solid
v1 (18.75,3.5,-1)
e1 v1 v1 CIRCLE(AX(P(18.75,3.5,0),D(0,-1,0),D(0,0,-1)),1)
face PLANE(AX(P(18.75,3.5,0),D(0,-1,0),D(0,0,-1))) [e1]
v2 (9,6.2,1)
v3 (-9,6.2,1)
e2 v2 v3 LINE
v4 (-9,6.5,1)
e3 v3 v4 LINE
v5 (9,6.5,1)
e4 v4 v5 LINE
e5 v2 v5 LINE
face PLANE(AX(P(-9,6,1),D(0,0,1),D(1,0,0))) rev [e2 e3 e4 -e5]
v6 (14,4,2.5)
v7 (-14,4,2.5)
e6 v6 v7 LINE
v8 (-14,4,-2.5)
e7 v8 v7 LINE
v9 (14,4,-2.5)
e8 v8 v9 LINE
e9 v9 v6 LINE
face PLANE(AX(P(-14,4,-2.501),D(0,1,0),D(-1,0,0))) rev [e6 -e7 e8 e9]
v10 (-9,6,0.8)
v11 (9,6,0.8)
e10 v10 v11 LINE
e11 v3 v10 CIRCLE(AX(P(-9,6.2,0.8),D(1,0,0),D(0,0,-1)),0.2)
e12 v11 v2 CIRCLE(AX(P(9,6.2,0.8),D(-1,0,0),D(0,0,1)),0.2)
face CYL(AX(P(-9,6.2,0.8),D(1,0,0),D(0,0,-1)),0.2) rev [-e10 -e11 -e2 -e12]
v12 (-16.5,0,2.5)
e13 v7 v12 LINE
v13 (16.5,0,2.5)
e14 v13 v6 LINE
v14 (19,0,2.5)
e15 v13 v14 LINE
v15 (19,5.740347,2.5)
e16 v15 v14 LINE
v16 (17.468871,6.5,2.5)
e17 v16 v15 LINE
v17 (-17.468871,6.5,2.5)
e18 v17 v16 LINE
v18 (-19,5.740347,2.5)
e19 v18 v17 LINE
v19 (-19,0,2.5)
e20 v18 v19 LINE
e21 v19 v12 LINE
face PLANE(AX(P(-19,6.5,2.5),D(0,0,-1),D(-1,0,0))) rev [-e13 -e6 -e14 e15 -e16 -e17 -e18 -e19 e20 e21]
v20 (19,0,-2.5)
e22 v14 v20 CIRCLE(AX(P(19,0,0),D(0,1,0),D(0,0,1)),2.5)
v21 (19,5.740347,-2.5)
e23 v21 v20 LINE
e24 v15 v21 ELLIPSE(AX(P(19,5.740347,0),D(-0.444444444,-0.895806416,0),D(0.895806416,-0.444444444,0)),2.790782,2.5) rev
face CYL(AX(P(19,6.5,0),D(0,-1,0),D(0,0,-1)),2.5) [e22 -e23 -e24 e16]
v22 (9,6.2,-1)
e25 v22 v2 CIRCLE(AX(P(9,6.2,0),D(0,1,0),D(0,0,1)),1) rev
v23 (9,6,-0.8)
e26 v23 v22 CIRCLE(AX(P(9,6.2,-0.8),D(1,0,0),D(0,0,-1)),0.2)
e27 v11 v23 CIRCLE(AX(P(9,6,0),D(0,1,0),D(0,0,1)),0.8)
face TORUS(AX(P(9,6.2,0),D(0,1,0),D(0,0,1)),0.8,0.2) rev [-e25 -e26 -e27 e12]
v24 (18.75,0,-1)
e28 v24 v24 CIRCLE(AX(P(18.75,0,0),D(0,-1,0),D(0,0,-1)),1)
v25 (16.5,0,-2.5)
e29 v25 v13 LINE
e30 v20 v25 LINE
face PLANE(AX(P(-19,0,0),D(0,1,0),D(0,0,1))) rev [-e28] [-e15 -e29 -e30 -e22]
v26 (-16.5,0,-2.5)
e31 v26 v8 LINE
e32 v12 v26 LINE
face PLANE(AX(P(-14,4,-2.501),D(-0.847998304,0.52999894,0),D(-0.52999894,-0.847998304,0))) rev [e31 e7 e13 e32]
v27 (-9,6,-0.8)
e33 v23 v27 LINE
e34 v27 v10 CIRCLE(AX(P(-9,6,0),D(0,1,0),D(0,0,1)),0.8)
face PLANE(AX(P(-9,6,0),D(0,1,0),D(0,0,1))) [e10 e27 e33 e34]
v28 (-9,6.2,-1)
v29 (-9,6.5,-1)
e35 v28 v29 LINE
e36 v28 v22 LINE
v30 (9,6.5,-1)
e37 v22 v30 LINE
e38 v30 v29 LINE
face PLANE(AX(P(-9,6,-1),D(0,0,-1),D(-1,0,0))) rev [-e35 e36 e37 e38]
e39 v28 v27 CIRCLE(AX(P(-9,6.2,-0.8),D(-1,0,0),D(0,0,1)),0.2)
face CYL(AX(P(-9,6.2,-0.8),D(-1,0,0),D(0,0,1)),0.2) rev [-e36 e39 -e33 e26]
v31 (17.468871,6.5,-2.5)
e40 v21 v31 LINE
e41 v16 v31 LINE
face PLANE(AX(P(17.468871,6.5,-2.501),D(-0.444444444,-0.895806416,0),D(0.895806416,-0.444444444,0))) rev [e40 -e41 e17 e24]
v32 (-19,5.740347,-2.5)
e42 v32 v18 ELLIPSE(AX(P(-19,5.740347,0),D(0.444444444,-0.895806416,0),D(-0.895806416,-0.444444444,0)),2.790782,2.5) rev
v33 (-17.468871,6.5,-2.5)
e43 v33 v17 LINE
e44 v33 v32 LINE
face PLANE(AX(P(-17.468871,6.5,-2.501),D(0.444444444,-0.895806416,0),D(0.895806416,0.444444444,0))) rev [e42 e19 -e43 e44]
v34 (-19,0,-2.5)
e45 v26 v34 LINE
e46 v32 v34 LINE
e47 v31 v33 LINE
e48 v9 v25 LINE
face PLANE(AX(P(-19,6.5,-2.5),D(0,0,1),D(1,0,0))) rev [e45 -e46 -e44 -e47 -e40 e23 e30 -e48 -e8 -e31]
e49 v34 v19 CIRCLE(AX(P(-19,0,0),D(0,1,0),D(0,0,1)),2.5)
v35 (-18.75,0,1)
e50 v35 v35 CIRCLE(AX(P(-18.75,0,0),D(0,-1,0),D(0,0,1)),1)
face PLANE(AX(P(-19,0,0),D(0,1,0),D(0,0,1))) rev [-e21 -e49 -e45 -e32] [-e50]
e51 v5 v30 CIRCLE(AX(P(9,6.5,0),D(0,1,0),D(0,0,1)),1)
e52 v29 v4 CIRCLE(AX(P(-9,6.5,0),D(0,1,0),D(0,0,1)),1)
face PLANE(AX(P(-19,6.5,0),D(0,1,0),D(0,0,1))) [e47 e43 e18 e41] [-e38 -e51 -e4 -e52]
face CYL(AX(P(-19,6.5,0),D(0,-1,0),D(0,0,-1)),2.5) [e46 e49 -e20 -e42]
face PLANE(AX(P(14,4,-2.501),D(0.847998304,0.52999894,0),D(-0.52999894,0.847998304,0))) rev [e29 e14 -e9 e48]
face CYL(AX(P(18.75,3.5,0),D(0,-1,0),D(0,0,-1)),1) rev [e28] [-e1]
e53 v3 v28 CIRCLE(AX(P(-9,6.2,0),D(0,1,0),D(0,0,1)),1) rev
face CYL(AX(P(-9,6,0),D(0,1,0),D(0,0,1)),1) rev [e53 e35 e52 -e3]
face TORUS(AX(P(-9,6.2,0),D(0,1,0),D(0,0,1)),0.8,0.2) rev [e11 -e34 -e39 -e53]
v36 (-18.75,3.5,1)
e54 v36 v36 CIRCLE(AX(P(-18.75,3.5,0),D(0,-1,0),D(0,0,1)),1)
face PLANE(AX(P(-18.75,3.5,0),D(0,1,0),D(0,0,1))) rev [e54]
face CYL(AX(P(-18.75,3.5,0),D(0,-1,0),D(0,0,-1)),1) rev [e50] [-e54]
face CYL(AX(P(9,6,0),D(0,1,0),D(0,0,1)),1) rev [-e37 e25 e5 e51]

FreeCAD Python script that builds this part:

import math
import FreeCAD as App
import Part
import Sketcher

V = App.Vector
Q = App.Units.Quantity


def edges_at(feature, points):
    """Names of the edges that pass closest to the given points."""
    edges = feature.Shape.Edges
    near = lambda p: min(range(len(edges)), key=lambda i: edges[i].distToShape(Part.Vertex(*p))[0])
    return sorted({f"Edge{near(p) + 1}" for p in points})

doc = App.newDocument("Part")
params = doc.addObject("Spreadsheet::Sheet", "Params")
for row, (alias, value) in enumerate([
    ("sketch1_radius", "2.5 mm"),
    ("sketch1_width", "38 mm"),
    ("pad1_length", "6.5 mm"),
    ("sketch2_length", "4.5 mm"),
    ("pocket1_length", "5 mm"),
    ("sketch3_width", "28 mm"),
    ("sketch3_width2", "33 mm"),
    ("sketch4_length", "4.5 mm"),
    ("pocket3_length", "5 mm"),
    ("sketch5_diameter", "2 mm"),
    ("pocket4_length", "3.5 mm"),
    ("sketch6_radius", "1 mm"),
    ("sketch6_width", "18 mm"),
    ("pocket5_length", "0.5 mm"),
    ("fillet_radius", "0.2 mm"),
], start=1):
    params.set(f"A{row}", alias)
    params.set(f"B{row}", "=" + value)
    params.setAlias(f"B{row}", alias)

body = doc.addObject("PartDesign::Body", "Body")

# Sketch on XZ plane
sketch1 = body.newObject("Sketcher::SketchObject", "Sketch")
sketch1.AttachmentSupport = (doc.getObject("XZ_Plane"), [""])
sketch1.MapMode = "FlatFace"
sketch1.addGeometry(Part.LineSegment(V(19, -2.5, 0), V(-19, -2.5, 0)), False)
sketch1.addGeometry(Part.ArcOfCircle(Part.Circle(V(-19, 0, 0), V(0, 0, 1), 2.5), math.radians(90), math.radians(270)), False)
sketch1.addGeometry(Part.LineSegment(V(-19, 2.5, 0), V(19, 2.5, 0)), False)
sketch1.addGeometry(Part.ArcOfCircle(Part.Circle(V(19, 0, 0), V(0, 0, 1), 2.5), math.radians(-90), math.radians(90)), False)
sketch1.addConstraint(Sketcher.Constraint("Tangent", 0, 2, 1, 2))
sketch1.addConstraint(Sketcher.Constraint("Tangent", 1, 1, 2, 1))
sketch1.addConstraint(Sketcher.Constraint("Tangent", 2, 2, 3, 2))
sketch1.addConstraint(Sketcher.Constraint("Tangent", 3, 1, 0, 1))
sketch1.addConstraint(Sketcher.Constraint("Horizontal", 0))
sketch1.addConstraint(Sketcher.Constraint("Horizontal", 2))
sketch1.addConstraint(Sketcher.Constraint("Symmetric", 1, 3, 3, 3, -1, 1))
sketch1.addConstraint(Sketcher.Constraint("Radius", 1, Q("2.5 mm")))
sketch1.addConstraint(Sketcher.Constraint("DistanceX", 0, 2, 0, 1, Q("38 mm")))
sketch1.setExpression("Constraints[7]", "Params.sketch1_radius")
sketch1.setExpression("Constraints[8]", "Params.sketch1_width")
pad1 = body.newObject("PartDesign::Pad", "Pad")
pad1.Profile = sketch1
pad1.setExpression("Length", "Params.pad1_length")
pad1.Reversed = True

# Sketch on XY plane
sketch2 = body.newObject("Sketcher::SketchObject", "Sketch001")
sketch2.AttachmentSupport = (doc.getObject("XY_Plane"), [""])
sketch2.MapMode = "FlatFace"
sketch2.AttachmentOffset = App.Placement(V(0, 0, 2.5), App.Rotation())
sketch2.addGeometry(Part.LineSegment(V(17.5, 6.5, 0), V(21.5, 4.5, 0)), False)
sketch2.addGeometry(Part.LineSegment(V(21.5, 4.5, 0), V(21.5, 7.4, 0)), False)
sketch2.addGeometry(Part.LineSegment(V(21.5, 7.4, 0), V(17.5, 7.4, 0)), False)
sketch2.addGeometry(Part.LineSegment(V(17.5, 7.4, 0), V(17.5, 6.5, 0)), False)
sketch2.addConstraint(Sketcher.Constraint("Coincident", 0, 2, 1, 1))
sketch2.addConstraint(Sketcher.Constraint("Coincident", 1, 2, 2, 1))
sketch2.addConstraint(Sketcher.Constraint("Coincident", 2, 2, 3, 1))
sketch2.addConstraint(Sketcher.Constraint("Coincident", 3, 2, 0, 1))
sketch2.addConstraint(Sketcher.Constraint("Vertical", 1))
sketch2.addConstraint(Sketcher.Constraint("Horizontal", 2))
sketch2.addConstraint(Sketcher.Constraint("Vertical", 3))
sketch2.addConstraint(Sketcher.Constraint("DistanceY", 0, 2, 3, 2, Q("2 mm")))
sketch2.addConstraint(Sketcher.Constraint("Distance", 0, Q("4.5 mm")))
sketch2.addConstraint(Sketcher.Constraint("DistanceX", -1, 1, 0, 2, Q("21.5 mm")))
sketch2.addConstraint(Sketcher.Constraint("DistanceY", -1, 1, 0, 2, Q("4.5 mm")))
sketch2.addConstraint(Sketcher.Constraint("DistanceY", 1, 1, 1, 2, Q("2.938332 mm")))
sketch2.setExpression("Constraints[8]", "Params.sketch2_length")
pocket1 = body.newObject("PartDesign::Pocket", "Pocket")
pocket1.Profile = sketch2
pocket1.setExpression("Length", "Params.pocket1_length")

# Sketch on XY plane
sketch3 = body.newObject("Sketcher::SketchObject", "Sketch002")
sketch3.AttachmentSupport = (doc.getObject("XY_Plane"), [""])
sketch3.MapMode = "FlatFace"
sketch3.AttachmentOffset = App.Placement(V(0, 0, 2.5), App.Rotation())
sketch3.addGeometry(Part.LineSegment(V(16.5, 0, 0), V(14, 4, 0)), False)
sketch3.addGeometry(Part.LineSegment(V(14, 4, 0), V(-14, 4, 0)), False)
sketch3.addGeometry(Part.LineSegment(V(-14, 4, 0), V(-16.5, 0, 0)), False)
sketch3.addGeometry(Part.LineSegment(V(-16.5, 0, 0), V(-16.5, -3, 0)), False)
sketch3.addGeometry(Part.LineSegment(V(-16.5, -3, 0), V(16.5, -3, 0)), False)
sketch3.addGeometry(Part.LineSegment(V(16.5, -3, 0), V(16.5, 0, 0)), False)
sketch3.addConstraint(Sketcher.Constraint("Coincident", 0, 2, 1, 1))
sketch3.addConstraint(Sketcher.Constraint("Coincident", 1, 2, 2, 1))
sketch3.addConstraint(Sketcher.Constraint("Coincident", 2, 2, 3, 1))
sketch3.addConstraint(Sketcher.Constraint("Coincident", 3, 2, 4, 1))
sketch3.addConstraint(Sketcher.Constraint("Coincident", 4, 2, 5, 1))
sketch3.addConstraint(Sketcher.Constraint("Coincident", 5, 2, 0, 1))
sketch3.addConstraint(Sketcher.Constraint("Horizontal", 1))
sketch3.addConstraint(Sketcher.Constraint("Vertical", 3))
sketch3.addConstraint(Sketcher.Constraint("Horizontal", 4))
sketch3.addConstraint(Sketcher.Constraint("Vertical", 5))
sketch3.addConstraint(Sketcher.Constraint("Symmetric", 2, 2, 5, 2, -1, 1))
sketch3.addConstraint(Sketcher.Constraint("PointOnObject", 2, 2, -1))
sketch3.addConstraint(Sketcher.Constraint("Equal", 0, 2))
sketch3.addConstraint(Sketcher.Constraint("DistanceX", 1, 2, 1, 1, Q("28 mm")))
sketch3.addConstraint(Sketcher.Constraint("DistanceX", 4, 1, 4, 2, Q("33 mm")))
sketch3.addConstraint(Sketcher.Constraint("DistanceY", -1, 1, 0, 2, Q("4 mm")))
sketch3.addConstraint(Sketcher.Constraint("DistanceY", 3, 2, 3, 1, Q("3.029657 mm")))
sketch3.setExpression("Constraints[13]", "Params.sketch3_width")
sketch3.setExpression("Constraints[14]", "Params.sketch3_width2")
pocket2 = body.newObject("PartDesign::Pocket", "Pocket001")
pocket2.Profile = sketch3
pocket2.Type = "UpToFirst"

# Sketch on XY plane
sketch4 = body.newObject("Sketcher::SketchObject", "Sketch003")
sketch4.AttachmentSupport = (doc.getObject("XY_Plane"), [""])
sketch4.MapMode = "FlatFace"
sketch4.AttachmentOffset = App.Placement(V(0, 0, 2.5), App.Rotation())
sketch4.addGeometry(Part.LineSegment(V(-17.5, 7.4, 0), V(-21.5, 7.4, 0)), False)
sketch4.addGeometry(Part.LineSegment(V(-21.5, 7.4, 0), V(-21.5, 4.5, 0)), False)
sketch4.addGeometry(Part.LineSegment(V(-21.5, 4.5, 0), V(-17.5, 6.5, 0)), False)
sketch4.addGeometry(Part.LineSegment(V(-17.5, 6.5, 0), V(-17.5, 7.4, 0)), False)
sketch4.addConstraint(Sketcher.Constraint("Coincident", 0, 2, 1, 1))
sketch4.addConstraint(Sketcher.Constraint("Coincident", 1, 2, 2, 1))
sketch4.addConstraint(Sketcher.Constraint("Coincident", 2, 2, 3, 1))
sketch4.addConstraint(Sketcher.Constraint("Coincident", 3, 2, 0, 1))
sketch4.addConstraint(Sketcher.Constraint("Horizontal", 0))
sketch4.addConstraint(Sketcher.Constraint("Vertical", 1))
sketch4.addConstraint(Sketcher.Constraint("Vertical", 3))
sketch4.addConstraint(Sketcher.Constraint("DistanceY", 1, 2, 2, 2, Q("2 mm")))
sketch4.addConstraint(Sketcher.Constraint("Distance", 2, Q("4.5 mm")))
sketch4.addConstraint(Sketcher.Constraint("DistanceX", 0, 2, -1, 1, Q("21.5 mm")))
sketch4.addConstraint(Sketcher.Constraint("DistanceY", -1, 1, 1, 2, Q("4.5 mm")))
sketch4.addConstraint(Sketcher.Constraint("DistanceY", 1, 2, 1, 1, Q("2.938332 mm")))
sketch4.setExpression("Constraints[8]", "Params.sketch4_length")
pocket3 = body.newObject("PartDesign::Pocket", "Pocket002")
pocket3.Profile = sketch4
pocket3.setExpression("Length", "Params.pocket3_length")

# Sketch on XZ plane
sketch5 = body.newObject("Sketcher::SketchObject", "Sketch004")
sketch5.AttachmentSupport = (doc.getObject("XZ_Plane"), [""])
sketch5.MapMode = "FlatFace"
sketch5.addGeometry(Part.Circle(V(18.8, 0, 0), V(0, 0, 1), 1), False)
sketch5.addGeometry(Part.Circle(V(-18.8, 0, 0), V(0, 0, 1), 1), False)
sketch5.addConstraint(Sketcher.Constraint("Equal", 0, 1))
sketch5.addConstraint(Sketcher.Constraint("Symmetric", 0, 3, 1, 3, -1, 1))
sketch5.addConstraint(Sketcher.Constraint("PointOnObject", 0, 3, -1))
sketch5.addConstraint(Sketcher.Constraint("Diameter", 0, Q("2 mm")))
sketch5.addConstraint(Sketcher.Constraint("DistanceX", 1, 3, 0, 3, Q("37.5 mm")))
sketch5.setExpression("Constraints[3]", "Params.sketch5_diameter")
pocket4 = body.newObject("PartDesign::Pocket", "Pocket003")
pocket4.Profile = sketch5
pocket4.setExpression("Length", "Params.pocket4_length")

# Sketch on XZ plane
sketch6 = body.newObject("Sketcher::SketchObject", "Sketch005")
sketch6.AttachmentSupport = (doc.getObject("XZ_Plane"), [""])
sketch6.MapMode = "FlatFace"
sketch6.AttachmentOffset = App.Placement(V(0, 0, -6.5), App.Rotation())
sketch6.addGeometry(Part.LineSegment(V(9, -1, 0), V(-9, -1, 0)), False)
sketch6.addGeometry(Part.ArcOfCircle(Part.Circle(V(-9, 0, 0), V(0, 0, 1), 1), math.radians(90), math.radians(270)), False)
sketch6.addGeometry(Part.LineSegment(V(-9, 1, 0), V(9, 1, 0)), False)
sketch6.addGeometry(Part.ArcOfCircle(Part.Circle(V(9, 0, 0), V(0, 0, 1), 1), math.radians(-90), math.radians(90)), False)
sketch6.addConstraint(Sketcher.Constraint("Tangent", 0, 2, 1, 2))
sketch6.addConstraint(Sketcher.Constraint("Tangent", 1, 1, 2, 1))
sketch6.addConstraint(Sketcher.Constraint("Tangent", 2, 2, 3, 2))
sketch6.addConstraint(Sketcher.Constraint("Tangent", 3, 1, 0, 1))
sketch6.addConstraint(Sketcher.Constraint("Horizontal", 0))
sketch6.addConstraint(Sketcher.Constraint("Horizontal", 2))
sketch6.addConstraint(Sketcher.Constraint("Symmetric", 1, 3, 3, 3, -1, 1))
sketch6.addConstraint(Sketcher.Constraint("Radius", 1, Q("1 mm")))
sketch6.addConstraint(Sketcher.Constraint("DistanceX", 0, 2, 0, 1, Q("18 mm")))
sketch6.setExpression("Constraints[7]", "Params.sketch6_radius")
sketch6.setExpression("Constraints[8]", "Params.sketch6_width")
pocket5 = body.newObject("PartDesign::Pocket", "Pocket004")
pocket5.Profile = sketch6
pocket5.setExpression("Length", "Params.pocket5_length")
pocket5.Reversed = True
doc.recompute()

fillet = body.newObject("PartDesign::Fillet", "Fillet")
fillet.Base = (pocket5, edges_at(pocket5, [
    (-10, 6, 0),
    (0, 6, -1),
    (10, 6, 0),
    (0, 6, 1),
]))
fillet.setExpression("Radius", "Params.fillet_radius")

doc.recompute()
